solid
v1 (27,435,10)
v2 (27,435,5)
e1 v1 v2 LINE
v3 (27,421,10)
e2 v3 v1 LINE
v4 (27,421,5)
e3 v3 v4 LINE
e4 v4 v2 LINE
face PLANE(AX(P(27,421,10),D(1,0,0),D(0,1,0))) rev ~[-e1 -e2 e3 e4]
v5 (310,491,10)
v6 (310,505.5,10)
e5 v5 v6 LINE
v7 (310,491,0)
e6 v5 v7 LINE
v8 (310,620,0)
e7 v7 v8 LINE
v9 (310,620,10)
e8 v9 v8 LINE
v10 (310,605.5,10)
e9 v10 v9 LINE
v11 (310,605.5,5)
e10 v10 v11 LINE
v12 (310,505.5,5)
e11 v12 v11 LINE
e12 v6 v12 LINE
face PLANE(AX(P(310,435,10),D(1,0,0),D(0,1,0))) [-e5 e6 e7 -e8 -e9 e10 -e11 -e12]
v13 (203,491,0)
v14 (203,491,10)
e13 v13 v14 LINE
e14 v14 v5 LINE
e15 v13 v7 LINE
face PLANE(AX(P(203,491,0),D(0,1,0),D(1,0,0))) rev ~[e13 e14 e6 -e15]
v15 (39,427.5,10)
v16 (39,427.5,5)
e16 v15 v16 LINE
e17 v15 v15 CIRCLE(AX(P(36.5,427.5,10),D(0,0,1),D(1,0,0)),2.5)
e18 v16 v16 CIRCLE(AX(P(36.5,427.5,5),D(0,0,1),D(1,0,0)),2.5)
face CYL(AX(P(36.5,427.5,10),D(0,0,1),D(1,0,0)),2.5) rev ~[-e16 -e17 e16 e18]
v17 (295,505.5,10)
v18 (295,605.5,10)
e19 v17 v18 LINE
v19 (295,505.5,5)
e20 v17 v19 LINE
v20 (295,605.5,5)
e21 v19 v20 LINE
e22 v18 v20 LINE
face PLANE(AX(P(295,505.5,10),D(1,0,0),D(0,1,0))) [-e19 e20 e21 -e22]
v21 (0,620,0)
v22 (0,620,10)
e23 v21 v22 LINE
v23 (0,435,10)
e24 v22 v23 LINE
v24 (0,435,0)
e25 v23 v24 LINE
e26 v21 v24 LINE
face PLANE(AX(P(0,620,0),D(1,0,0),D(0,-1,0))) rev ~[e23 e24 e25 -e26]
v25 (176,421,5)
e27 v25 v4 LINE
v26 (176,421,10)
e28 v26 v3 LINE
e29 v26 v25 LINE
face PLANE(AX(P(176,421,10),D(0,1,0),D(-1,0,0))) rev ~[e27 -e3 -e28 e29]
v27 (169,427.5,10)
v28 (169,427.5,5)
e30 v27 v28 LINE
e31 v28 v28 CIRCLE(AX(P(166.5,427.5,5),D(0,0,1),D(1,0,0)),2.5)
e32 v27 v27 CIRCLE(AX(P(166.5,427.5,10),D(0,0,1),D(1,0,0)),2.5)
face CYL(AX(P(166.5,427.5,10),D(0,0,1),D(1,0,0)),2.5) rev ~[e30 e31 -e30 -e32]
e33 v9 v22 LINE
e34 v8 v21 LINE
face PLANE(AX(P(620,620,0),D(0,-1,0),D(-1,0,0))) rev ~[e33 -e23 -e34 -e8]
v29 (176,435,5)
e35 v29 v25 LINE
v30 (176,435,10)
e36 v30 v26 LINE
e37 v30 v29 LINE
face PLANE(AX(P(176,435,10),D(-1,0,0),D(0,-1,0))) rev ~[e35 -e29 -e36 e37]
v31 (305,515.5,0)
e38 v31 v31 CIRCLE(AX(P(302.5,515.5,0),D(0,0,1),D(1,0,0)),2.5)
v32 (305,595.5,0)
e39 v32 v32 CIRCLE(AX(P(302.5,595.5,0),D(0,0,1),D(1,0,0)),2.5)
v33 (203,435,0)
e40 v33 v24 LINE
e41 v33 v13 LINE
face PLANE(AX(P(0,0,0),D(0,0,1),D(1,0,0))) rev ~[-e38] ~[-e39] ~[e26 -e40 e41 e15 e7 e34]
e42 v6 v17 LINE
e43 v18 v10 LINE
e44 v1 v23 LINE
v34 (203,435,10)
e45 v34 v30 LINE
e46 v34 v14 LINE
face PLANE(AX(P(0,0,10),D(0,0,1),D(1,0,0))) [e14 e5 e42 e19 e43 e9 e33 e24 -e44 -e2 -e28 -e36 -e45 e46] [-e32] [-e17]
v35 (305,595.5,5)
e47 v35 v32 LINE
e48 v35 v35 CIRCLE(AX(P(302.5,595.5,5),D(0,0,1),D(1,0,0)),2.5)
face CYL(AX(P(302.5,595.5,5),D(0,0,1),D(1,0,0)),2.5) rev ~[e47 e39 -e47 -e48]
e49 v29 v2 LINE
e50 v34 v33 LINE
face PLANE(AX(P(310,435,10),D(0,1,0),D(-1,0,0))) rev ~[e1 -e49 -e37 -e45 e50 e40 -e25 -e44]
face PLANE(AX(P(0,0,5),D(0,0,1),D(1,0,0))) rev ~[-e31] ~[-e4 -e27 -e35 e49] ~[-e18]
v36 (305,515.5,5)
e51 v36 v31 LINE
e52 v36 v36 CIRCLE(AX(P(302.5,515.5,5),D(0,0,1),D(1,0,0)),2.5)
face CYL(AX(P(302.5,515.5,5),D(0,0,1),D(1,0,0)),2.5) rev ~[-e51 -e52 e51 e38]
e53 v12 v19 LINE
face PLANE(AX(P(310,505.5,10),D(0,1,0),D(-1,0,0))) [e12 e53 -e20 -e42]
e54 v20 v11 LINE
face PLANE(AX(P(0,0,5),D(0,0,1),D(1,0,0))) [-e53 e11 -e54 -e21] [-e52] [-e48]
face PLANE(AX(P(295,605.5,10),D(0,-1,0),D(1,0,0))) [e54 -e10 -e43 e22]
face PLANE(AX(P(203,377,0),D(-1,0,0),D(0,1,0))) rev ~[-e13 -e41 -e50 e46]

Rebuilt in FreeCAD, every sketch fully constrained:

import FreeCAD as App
import Part
import Sketcher
from FreeCAD import Vector
Q = App.Units.Quantity

doc = App.newDocument("Part")
body = doc.addObject("PartDesign::Body", "Body")

# Sketch on XY plane
sketch1 = body.newObject("Sketcher::SketchObject", "Sketch")
sketch1.AttachmentSupport = (doc.getObject("XY_Plane"), [""])
sketch1.MapMode = "FlatFace"
sketch1.addGeometry([
    Part.LineSegment(Vector(0, 620, 0), Vector(0, 0, 0)),  # 0
    Part.LineSegment(Vector(0, 0, 0), Vector(620, 0, 0)),  # 1
    Part.LineSegment(Vector(620, 0, 0), Vector(620, 620, 0)),  # 2
    Part.LineSegment(Vector(620, 620, 0), Vector(0, 620, 0)),  # 3
    Part.LineSegment(Vector(203, 377, 0), Vector(203, 491, 0)),  # 4
    Part.LineSegment(Vector(203, 491, 0), Vector(417, 491, 0)),  # 5
    Part.LineSegment(Vector(417, 491, 0), Vector(417, 377, 0)),  # 6
    Part.LineSegment(Vector(417, 377, 0), Vector(203, 377, 0)),  # 7
], False)
sketch1.addConstraint([
    Sketcher.Constraint("Coincident", 0, 2, 1, 1),
    Sketcher.Constraint("Coincident", 1, 2, 2, 1),
    Sketcher.Constraint("Coincident", 2, 2, 3, 1),
    Sketcher.Constraint("Coincident", 3, 2, 0, 1),
    Sketcher.Constraint("Coincident", 4, 2, 5, 1),
    Sketcher.Constraint("Coincident", 5, 2, 6, 1),
    Sketcher.Constraint("Coincident", 6, 2, 7, 1),
    Sketcher.Constraint("Coincident", 7, 2, 4, 1),
    Sketcher.Constraint("Vertical", 0),
    Sketcher.Constraint("Horizontal", 1),
    Sketcher.Constraint("Vertical", 2),
    Sketcher.Constraint("Horizontal", 3),
    Sketcher.Constraint("Vertical", 4),
    Sketcher.Constraint("Horizontal", 5),
    Sketcher.Constraint("Vertical", 6),
    Sketcher.Constraint("Horizontal", 7),
    Sketcher.Constraint("Coincident", 0, 2, -1, 1),
    Sketcher.Constraint("Equal", 3, 0),
    Sketcher.Constraint("DistanceX", 1, 1, 1, 2, Q("620 mm")),
    Sketcher.Constraint("DistanceX", 5, 1, 5, 2, Q("214 mm")),
    Sketcher.Constraint("DistanceY", 4, 1, 4, 2, Q("114 mm")),
    Sketcher.Constraint("DistanceY", 4, 2, 3, 2, Q("129 mm")),
    Sketcher.Constraint("DistanceX", -1, 1, 4, 2, Q("203 mm")),
])
pad1 = body.newObject("PartDesign::Pad", "Pad")
pad1.Profile = sketch1
pad1.Length = 10

# Sketch on XY plane
sketch2 = body.newObject("Sketcher::SketchObject", "Sketch001")
sketch2.AttachmentSupport = (doc.getObject("XY_Plane"), [""])
sketch2.MapMode = "FlatFace"
sketch2.AttachmentOffset = App.Placement(Vector(0, 0, 10), App.Rotation())
sketch2.addGeometry([
    Part.LineSegment(Vector(0, 435, 0), Vector(0, 0, 0)),  # 0
    Part.LineSegment(Vector(0, 0, 0), Vector(620, 0, 0)),  # 1
    Part.LineSegment(Vector(620, 0, 0), Vector(620, 620, 0)),  # 2
    Part.LineSegment(Vector(620, 620, 0), Vector(310, 620, 0)),  # 3
    Part.LineSegment(Vector(310, 620, 0), Vector(310, 435, 0)),  # 4
    Part.LineSegment(Vector(310, 435, 0), Vector(0, 435, 0)),  # 5
], False)
sketch2.addConstraint([
    Sketcher.Constraint("Coincident", 0, 2, 1, 1),
    Sketcher.Constraint("Coincident", 1, 2, 2, 1),
    Sketcher.Constraint("Coincident", 2, 2, 3, 1),
    Sketcher.Constraint("Coincident", 3, 2, 4, 1),
    Sketcher.Constraint("Coincident", 4, 2, 5, 1),
    Sketcher.Constraint("Coincident", 5, 2, 0, 1),
    Sketcher.Constraint("Vertical", 0),
    Sketcher.Constraint("Horizontal", 1),
    Sketcher.Constraint("Vertical", 2),
    Sketcher.Constraint("Horizontal", 3),
    Sketcher.Constraint("Vertical", 4),
    Sketcher.Constraint("Horizontal", 5),
    Sketcher.Constraint("Coincident", 0, 2, -1, 1),
    Sketcher.Constraint("Equal", 3, 5),
    Sketcher.Constraint("Equal", 1, 2),
    Sketcher.Constraint("DistanceY", 0, 2, 0, 1, Q("435 mm")),
    Sketcher.Constraint("DistanceX", 1, 1, 1, 2, Q("620 mm")),
])
pocket1 = body.newObject("PartDesign::Pocket", "Pocket")
pocket1.Profile = sketch2
pocket1.Type = "ThroughAll"

# Sketch on XY plane
sketch3 = body.newObject("Sketcher::SketchObject", "Sketch002")
sketch3.AttachmentSupport = (doc.getObject("XY_Plane"), [""])
sketch3.MapMode = "FlatFace"
sketch3.AttachmentOffset = App.Placement(Vector(0, 0, 10), App.Rotation())
sketch3.addGeometry([
    Part.LineSegment(Vector(295, 506, 0), Vector(310, 506, 0)),
    Part.LineSegment(Vector(310, 506, 0), Vector(310, 606, 0)),
    Part.LineSegment(Vector(310, 606, 0), Vector(295, 606, 0)),
    Part.LineSegment(Vector(295, 606, 0), Vector(295, 506, 0)),
], False)
sketch3.addConstraint([
    Sketcher.Constraint("Coincident", 0, 2, 1, 1),
    Sketcher.Constraint("Coincident", 1, 2, 2, 1),
    Sketcher.Constraint("Coincident", 2, 2, 3, 1),
    Sketcher.Constraint("Coincident", 3, 2, 0, 1),
    Sketcher.Constraint("Horizontal", 0),
    Sketcher.Constraint("Vertical", 1),
    Sketcher.Constraint("Horizontal", 2),
    Sketcher.Constraint("Vertical", 3),
    Sketcher.Constraint("DistanceX", 0, 1, 0, 2, Q("15 mm")),
    Sketcher.Constraint("DistanceY", 1, 1, 1, 2, Q("100 mm")),
    Sketcher.Constraint("DistanceX", -1, 1, 0, 2, Q("310 mm")),
    Sketcher.Constraint("DistanceY", -1, 1, 0, 2, Q("505.5 mm")),
])
pocket2 = body.newObject("PartDesign::Pocket", "Pocket001")
pocket2.Profile = sketch3
pocket2.Length = 5

# Sketch on XY plane
sketch4 = body.newObject("Sketcher::SketchObject", "Sketch003")
sketch4.AttachmentSupport = (doc.getObject("XY_Plane"), [""])
sketch4.MapMode = "FlatFace"
sketch4.AttachmentOffset = App.Placement(Vector(0, 0, 5), App.Rotation())
sketch4.addGeometry([
    Part.Circle(Vector(302.5, 515.5, 0), Vector(0, 0, 1), 2.5),
    Part.Circle(Vector(302.5, 595.5, 0), Vector(0, 0, 1), 2.5),
], False)
sketch4.addConstraint([
    Sketcher.Constraint("Equal", 0, 1),
    Sketcher.Constraint("Vertical", 0, 3, 1, 3),
    Sketcher.Constraint("Diameter", 0, Q("5 mm")),
    Sketcher.Constraint("DistanceY", 0, 3, 1, 3, Q("80 mm")),
    Sketcher.Constraint("DistanceX", -1, 1, 0, 3, Q("302.5 mm")),
    Sketcher.Constraint("DistanceY", -1, 1, 0, 3, Q("515.5 mm")),
])
pocket3 = body.newObject("PartDesign::Pocket", "Pocket002")
pocket3.Profile = sketch4
pocket3.Type = "ThroughAll"

# Sketch on XY plane
sketch5 = body.newObject("Sketcher::SketchObject", "Sketch004")
sketch5.AttachmentSupport = (doc.getObject("XY_Plane"), [""])
sketch5.MapMode = "FlatFace"
sketch5.AttachmentOffset = App.Placement(Vector(0, 0, 10), App.Rotation())
sketch5.addGeometry([
    Part.LineSegment(Vector(176, 421, 0), Vector(176, 435, 0)),  # 0
    Part.LineSegment(Vector(176, 435, 0), Vector(27, 435, 0)),  # 1
    Part.LineSegment(Vector(27, 435, 0), Vector(27, 421, 0)),  # 2
    Part.LineSegment(Vector(27, 421, 0), Vector(176, 421, 0)),  # 3
    Part.Circle(Vector(36.5, 427.5, 0), Vector(0, 0, 1), 2.5),  # 4
    Part.Circle(Vector(166.5, 427.5, 0), Vector(0, 0, 1), 2.5),  # 5
], False)
sketch5.addConstraint([
    Sketcher.Constraint("Coincident", 0, 2, 1, 1),
    Sketcher.Constraint("Coincident", 1, 2, 2, 1),
    Sketcher.Constraint("Coincident", 2, 2, 3, 1),
    Sketcher.Constraint("Coincident", 3, 2, 0, 1),
    Sketcher.Constraint("Vertical", 0),
    Sketcher.Constraint("Horizontal", 1),
    Sketcher.Constraint("Vertical", 2),
    Sketcher.Constraint("Horizontal", 3),
    Sketcher.Constraint("Equal", 4, 5),
    Sketcher.Constraint("Horizontal", 4, 3, 5, 3),
    Sketcher.Constraint("Diameter", 4, Q("5 mm")),
    Sketcher.Constraint("DistanceX", 1, 2, 1, 1, Q("149 mm")),
    Sketcher.Constraint("DistanceY", 0, 1, 0, 2, Q("14 mm")),
    Sketcher.Constraint("DistanceX", -1, 1, 0, 2, Q("176 mm")),
    Sketcher.Constraint("DistanceY", -1, 1, 0, 2, Q("435 mm")),
    Sketcher.Constraint("DistanceX", 4, 3, 5, 3, Q("130 mm")),
    Sketcher.Constraint("DistanceX", -1, 1, 4, 3, Q("36.5 mm")),
    Sketcher.Constraint("DistanceY", -1, 1, 4, 3, Q("427.5 mm")),
])
pad2 = body.newObject("PartDesign::Pad", "Pad001")
pad2.Profile = sketch5
pad2.Length = 5
pad2.Reversed = True

doc.recompute()
